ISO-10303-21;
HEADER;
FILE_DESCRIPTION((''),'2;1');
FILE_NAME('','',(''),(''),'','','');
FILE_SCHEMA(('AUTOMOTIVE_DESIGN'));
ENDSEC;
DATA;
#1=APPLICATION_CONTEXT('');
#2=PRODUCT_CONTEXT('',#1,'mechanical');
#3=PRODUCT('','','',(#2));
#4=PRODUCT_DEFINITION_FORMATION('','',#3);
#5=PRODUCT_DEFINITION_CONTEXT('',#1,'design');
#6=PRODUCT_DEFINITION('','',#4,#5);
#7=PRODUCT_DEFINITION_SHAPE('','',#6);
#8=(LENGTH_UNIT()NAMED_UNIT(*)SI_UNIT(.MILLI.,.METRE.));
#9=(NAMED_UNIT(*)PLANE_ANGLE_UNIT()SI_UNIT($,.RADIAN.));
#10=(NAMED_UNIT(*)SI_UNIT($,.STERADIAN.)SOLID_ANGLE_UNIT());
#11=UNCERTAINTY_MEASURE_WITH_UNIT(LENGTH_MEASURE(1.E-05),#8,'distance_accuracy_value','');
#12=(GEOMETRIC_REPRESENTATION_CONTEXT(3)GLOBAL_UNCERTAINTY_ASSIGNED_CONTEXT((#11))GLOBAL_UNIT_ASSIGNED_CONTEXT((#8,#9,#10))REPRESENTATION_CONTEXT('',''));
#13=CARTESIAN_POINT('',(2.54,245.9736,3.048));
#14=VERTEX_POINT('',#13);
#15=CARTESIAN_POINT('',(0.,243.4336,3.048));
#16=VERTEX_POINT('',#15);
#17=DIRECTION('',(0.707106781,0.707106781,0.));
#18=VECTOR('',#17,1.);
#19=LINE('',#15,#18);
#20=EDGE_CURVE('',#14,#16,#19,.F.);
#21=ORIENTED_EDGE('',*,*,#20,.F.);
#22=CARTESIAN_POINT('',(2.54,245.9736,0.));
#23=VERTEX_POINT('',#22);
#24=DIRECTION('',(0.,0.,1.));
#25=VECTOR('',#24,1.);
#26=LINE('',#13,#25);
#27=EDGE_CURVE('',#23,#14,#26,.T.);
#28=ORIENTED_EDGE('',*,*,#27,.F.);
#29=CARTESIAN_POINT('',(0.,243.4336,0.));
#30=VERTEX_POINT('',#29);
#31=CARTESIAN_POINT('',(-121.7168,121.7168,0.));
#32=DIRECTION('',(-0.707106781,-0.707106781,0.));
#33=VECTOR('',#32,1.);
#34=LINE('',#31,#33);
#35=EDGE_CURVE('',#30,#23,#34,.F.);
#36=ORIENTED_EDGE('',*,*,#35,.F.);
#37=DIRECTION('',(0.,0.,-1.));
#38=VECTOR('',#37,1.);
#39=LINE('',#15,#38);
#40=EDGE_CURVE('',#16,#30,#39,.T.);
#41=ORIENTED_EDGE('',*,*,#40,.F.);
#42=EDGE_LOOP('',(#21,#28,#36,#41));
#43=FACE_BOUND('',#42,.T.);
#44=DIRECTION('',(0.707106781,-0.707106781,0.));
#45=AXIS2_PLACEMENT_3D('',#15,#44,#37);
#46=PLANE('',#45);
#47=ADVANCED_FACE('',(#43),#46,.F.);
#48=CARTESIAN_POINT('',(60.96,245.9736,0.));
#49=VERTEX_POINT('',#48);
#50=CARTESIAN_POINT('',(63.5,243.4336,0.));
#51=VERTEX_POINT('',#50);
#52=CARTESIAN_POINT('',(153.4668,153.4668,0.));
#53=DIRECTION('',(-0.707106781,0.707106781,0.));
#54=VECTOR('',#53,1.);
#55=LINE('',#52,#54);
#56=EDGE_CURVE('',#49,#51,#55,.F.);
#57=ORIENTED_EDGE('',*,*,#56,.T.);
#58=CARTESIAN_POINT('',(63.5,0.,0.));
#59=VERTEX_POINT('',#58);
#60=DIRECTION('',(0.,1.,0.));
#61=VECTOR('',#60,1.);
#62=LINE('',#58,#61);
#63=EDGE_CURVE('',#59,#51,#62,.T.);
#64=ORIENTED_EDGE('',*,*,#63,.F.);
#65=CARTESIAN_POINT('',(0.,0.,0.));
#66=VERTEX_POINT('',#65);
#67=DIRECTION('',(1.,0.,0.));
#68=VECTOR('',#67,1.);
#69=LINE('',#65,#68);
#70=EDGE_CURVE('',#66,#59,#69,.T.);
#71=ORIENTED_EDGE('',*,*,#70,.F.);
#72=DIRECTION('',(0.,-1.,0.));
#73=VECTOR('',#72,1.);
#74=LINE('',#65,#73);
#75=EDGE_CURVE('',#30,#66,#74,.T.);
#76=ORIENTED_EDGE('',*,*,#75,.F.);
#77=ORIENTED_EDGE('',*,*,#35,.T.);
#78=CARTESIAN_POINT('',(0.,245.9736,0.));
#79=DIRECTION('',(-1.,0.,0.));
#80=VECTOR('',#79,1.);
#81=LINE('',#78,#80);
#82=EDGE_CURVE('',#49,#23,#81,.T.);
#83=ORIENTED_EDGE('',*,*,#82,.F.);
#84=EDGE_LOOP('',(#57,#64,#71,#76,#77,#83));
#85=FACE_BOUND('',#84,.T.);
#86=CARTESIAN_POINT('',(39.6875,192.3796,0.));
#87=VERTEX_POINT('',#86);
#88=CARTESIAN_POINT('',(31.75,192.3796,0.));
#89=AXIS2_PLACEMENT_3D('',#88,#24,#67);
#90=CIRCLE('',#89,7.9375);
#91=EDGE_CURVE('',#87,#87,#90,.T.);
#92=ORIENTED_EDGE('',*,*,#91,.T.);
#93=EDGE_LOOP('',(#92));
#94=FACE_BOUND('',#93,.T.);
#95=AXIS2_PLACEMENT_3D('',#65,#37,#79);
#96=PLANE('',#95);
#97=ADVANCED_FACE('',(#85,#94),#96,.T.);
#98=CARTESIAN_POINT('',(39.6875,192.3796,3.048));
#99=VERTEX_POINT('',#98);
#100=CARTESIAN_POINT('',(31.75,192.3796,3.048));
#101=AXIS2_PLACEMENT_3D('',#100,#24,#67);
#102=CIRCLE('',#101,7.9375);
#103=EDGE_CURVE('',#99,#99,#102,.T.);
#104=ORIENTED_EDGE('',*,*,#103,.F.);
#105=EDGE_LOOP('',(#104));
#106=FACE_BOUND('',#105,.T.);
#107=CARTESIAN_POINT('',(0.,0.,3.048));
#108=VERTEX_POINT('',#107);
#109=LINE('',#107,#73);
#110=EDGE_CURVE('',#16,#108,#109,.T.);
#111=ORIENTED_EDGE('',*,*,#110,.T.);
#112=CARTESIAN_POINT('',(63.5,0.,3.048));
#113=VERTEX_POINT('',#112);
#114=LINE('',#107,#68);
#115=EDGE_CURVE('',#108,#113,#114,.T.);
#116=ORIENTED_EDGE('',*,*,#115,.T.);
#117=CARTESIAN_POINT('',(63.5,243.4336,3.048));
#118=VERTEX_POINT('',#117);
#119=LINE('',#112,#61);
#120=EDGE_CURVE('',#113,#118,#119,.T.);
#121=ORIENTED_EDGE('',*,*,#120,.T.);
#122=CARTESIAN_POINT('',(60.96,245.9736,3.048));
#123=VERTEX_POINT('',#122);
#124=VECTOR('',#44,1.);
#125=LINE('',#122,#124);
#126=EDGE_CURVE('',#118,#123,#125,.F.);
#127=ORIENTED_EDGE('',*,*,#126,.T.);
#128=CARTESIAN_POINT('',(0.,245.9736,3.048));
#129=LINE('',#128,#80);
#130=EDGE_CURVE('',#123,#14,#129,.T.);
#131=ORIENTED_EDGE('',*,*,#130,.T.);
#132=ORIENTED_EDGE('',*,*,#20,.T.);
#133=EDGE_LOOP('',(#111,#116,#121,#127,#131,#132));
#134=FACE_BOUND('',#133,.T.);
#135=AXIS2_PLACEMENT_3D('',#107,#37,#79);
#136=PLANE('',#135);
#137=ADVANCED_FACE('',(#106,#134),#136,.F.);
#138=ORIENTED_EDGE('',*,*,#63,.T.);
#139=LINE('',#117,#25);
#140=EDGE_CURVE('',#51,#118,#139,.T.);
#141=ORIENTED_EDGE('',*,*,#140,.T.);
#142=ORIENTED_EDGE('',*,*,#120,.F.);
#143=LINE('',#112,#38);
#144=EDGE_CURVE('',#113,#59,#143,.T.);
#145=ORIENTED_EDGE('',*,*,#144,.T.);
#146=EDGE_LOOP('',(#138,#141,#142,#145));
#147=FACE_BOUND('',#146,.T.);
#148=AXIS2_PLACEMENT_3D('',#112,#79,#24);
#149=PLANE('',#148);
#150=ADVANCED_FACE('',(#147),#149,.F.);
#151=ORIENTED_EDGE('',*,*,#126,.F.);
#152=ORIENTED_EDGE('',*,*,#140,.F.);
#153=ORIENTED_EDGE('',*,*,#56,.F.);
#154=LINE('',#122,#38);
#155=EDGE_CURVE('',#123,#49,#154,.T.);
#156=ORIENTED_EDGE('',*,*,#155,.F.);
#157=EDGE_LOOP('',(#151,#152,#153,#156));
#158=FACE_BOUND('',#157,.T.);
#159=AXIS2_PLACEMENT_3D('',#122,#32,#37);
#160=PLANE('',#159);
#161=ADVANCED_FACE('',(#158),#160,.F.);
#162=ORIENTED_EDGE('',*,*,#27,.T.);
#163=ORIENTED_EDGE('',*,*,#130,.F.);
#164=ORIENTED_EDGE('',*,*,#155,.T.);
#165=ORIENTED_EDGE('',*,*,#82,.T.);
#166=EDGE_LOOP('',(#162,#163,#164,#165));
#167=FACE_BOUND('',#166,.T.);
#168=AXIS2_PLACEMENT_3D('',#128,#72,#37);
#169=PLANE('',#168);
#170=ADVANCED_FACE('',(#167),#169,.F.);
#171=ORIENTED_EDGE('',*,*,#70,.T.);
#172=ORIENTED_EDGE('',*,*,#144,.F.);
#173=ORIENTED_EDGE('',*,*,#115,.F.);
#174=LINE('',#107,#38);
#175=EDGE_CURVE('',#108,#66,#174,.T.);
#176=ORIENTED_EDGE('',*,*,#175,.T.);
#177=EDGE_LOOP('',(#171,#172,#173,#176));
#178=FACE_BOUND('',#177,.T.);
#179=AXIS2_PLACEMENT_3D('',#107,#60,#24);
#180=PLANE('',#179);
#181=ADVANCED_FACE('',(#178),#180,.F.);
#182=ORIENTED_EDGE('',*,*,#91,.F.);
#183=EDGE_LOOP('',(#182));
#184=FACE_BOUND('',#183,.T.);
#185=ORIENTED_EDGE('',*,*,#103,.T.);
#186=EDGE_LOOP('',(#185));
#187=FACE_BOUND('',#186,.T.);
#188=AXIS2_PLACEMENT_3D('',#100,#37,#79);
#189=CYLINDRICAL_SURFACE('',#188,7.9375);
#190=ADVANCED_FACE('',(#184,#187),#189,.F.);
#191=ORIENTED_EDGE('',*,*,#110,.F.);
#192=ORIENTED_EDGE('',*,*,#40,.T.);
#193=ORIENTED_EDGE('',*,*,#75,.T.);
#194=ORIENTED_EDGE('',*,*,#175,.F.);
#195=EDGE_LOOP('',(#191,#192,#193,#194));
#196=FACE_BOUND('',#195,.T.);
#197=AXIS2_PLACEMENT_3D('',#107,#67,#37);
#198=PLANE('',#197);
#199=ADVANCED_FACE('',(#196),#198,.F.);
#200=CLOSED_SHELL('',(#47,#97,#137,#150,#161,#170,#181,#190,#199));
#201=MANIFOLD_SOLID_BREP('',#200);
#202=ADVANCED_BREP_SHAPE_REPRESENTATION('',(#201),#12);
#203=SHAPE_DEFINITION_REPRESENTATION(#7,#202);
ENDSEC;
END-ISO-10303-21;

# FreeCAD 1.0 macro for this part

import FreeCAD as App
import Part
import Sketcher
from FreeCAD import Vector
Q = App.Units.Quantity


def edges_at(feature, points):
    """Names of the edges that pass closest to the given points."""
    edges = feature.Shape.Edges
    near = lambda p: min(range(len(edges)), key=lambda i: edges[i].distToShape(Part.Vertex(*p))[0])
    return sorted({f"Edge{near(p) + 1}" for p in points})


def add_polygon(sketch, points):
    """Adds a closed chain of lines whose ends are joined by coincident constraints."""
    first, n = sketch.GeometryCount, len(points)
    for a, b in zip(points, points[1:] + points[:1]):
        sketch.addGeometry(Part.LineSegment(App.Vector(*a, 0), App.Vector(*b, 0)), False)
    for i in range(n):
        sketch.addConstraint(Sketcher.Constraint("Coincident", first + i, 2, first + (i + 1) % n, 1))

doc = App.newDocument("Part")
body = doc.addObject("PartDesign::Body", "Body")

# Sketch on XY plane
sketch1 = body.newObject("Sketcher::SketchObject", "Sketch")
sketch1.AttachmentSupport = (doc.getObject("XY_Plane"), [""])
sketch1.MapMode = "FlatFace"
add_polygon(sketch1, [(0, 246), (0, 0), (64, 0), (64, 246)])  # lines 0-3
sketch1.addGeometry(Part.Circle(Vector(32, 192, 0), Vector(0, 0, 1), 8), False)  # 4
sketch1.addConstraint(Sketcher.Constraint("Vertical", 0))
sketch1.addConstraint(Sketcher.Constraint("Horizontal", 1))
sketch1.addConstraint(Sketcher.Constraint("Vertical", 2))
sketch1.addConstraint(Sketcher.Constraint("Horizontal", 3))
sketch1.addConstraint(Sketcher.Constraint("Coincident", 0, 2, -1, 1))
sketch1.addConstraint(Sketcher.Constraint("Diameter", 4, Q("0.625 in")))
sketch1.addConstraint(Sketcher.Constraint("DistanceX", 1, 1, 1, 2, Q("2.5 in")))
sketch1.addConstraint(Sketcher.Constraint("DistanceY", 0, 2, 0, 1, Q("9.684 in")))
sketch1.addConstraint(Sketcher.Constraint("DistanceX", -1, 1, 4, 3, Q("1.25 in")))
sketch1.addConstraint(Sketcher.Constraint("DistanceY", 4, 3, 2, 2, Q("2.11 in")))
pad1 = body.newObject("PartDesign::Pad", "Pad")
pad1.Profile = sketch1
pad1.Length = Q("0.12 in")
doc.recompute()

chamfer = body.newObject("PartDesign::Chamfer", "Chamfer")
chamfer.Base = (pad1, edges_at(pad1, [(0, 245.974, 1.524), (63.5, 245.974, 1.524)]))
chamfer.Size = Q("0.1 in")

doc.recompute()
